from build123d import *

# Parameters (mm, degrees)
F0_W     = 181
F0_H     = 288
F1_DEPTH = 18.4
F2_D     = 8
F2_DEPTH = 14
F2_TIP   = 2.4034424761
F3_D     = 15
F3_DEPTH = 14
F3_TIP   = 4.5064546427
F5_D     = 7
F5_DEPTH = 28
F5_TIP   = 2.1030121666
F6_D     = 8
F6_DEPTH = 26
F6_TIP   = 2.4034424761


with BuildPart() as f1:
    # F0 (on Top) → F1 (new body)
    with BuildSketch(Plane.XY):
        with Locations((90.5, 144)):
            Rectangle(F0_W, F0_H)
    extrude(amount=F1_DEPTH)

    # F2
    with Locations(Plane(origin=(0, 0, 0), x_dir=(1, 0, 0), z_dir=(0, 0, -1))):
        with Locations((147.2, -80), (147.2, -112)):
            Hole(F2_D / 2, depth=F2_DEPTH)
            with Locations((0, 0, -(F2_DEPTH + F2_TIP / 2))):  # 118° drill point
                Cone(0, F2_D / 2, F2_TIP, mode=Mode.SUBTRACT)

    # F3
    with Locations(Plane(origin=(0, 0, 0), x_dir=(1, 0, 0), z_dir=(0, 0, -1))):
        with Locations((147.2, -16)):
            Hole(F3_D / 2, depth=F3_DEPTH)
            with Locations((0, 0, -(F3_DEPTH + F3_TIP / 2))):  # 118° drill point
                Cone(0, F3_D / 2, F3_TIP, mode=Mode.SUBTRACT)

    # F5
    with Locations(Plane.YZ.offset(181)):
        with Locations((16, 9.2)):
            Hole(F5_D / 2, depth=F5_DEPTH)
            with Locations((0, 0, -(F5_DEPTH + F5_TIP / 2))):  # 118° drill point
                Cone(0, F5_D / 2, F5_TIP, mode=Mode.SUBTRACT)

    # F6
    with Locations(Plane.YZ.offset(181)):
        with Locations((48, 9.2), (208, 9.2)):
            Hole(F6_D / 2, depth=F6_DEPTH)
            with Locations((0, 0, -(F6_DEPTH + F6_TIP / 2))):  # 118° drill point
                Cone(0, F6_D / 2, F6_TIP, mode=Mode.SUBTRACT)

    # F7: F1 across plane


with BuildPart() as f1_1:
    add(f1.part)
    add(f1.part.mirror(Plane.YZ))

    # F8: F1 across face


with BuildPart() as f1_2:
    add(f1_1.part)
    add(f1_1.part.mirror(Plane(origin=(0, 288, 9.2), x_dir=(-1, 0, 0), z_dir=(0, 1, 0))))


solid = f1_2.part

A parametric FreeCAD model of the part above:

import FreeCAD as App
import Part
import Sketcher

V = App.Vector
Q = App.Units.Quantity


def add_polygon(sketch, points):
    """Adds a closed chain of lines whose ends are joined by coincident constraints."""
    first, n = sketch.GeometryCount, len(points)
    for a, b in zip(points, points[1:] + points[:1]):
        sketch.addGeometry(Part.LineSegment(App.Vector(*a, 0), App.Vector(*b, 0)), False)
    for i in range(n):
        sketch.addConstraint(Sketcher.Constraint("Coincident", first + i, 2, first + (i + 1) % n, 1))

doc = App.newDocument("Part")
body = doc.addObject("PartDesign::Body", "Body")

# Sketch on XY plane
sketch1 = body.newObject("Sketcher::SketchObject", "Sketch")
sketch1.AttachmentSupport = (doc.getObject("XY_Plane"), [""])
sketch1.MapMode = "FlatFace"
add_polygon(sketch1, [(0, 288), (0, 0), (181, 0), (181, 288)])  # lines 0-3
sketch1.addConstraint([
    Sketcher.Constraint("Vertical", 0),
    Sketcher.Constraint("Horizontal", 1),
    Sketcher.Constraint("Vertical", 2),
    Sketcher.Constraint("Horizontal", 3),
    Sketcher.Constraint("Coincident", 0, 2, -1, 1),
    Sketcher.Constraint("DistanceX", 1, 1, 1, 2, Q("181 mm")),
    Sketcher.Constraint("DistanceY", 0, 2, 0, 1, Q("288 mm")),
])
pad1 = body.newObject("PartDesign::Pad", "Pad")
pad1.Profile = sketch1
pad1.Length = 18.4

# Sketch on XY plane
sketch2 = body.newObject("Sketcher::SketchObject", "Sketch001")
sketch2.AttachmentSupport = (doc.getObject("XY_Plane"), [""])
sketch2.MapMode = "FlatFace"
sketch2.addGeometry([
    Part.Circle(V(147.2, 80, 0), V(0, 0, 1), 4),
    Part.Circle(V(147.2, 112, 0), V(0, 0, 1), 4),
], False)
sketch2.addConstraint([
    Sketcher.Constraint("Equal", 0, 1),
    Sketcher.Constraint("Vertical", 0, 3, 1, 3),
    Sketcher.Constraint("Diameter", 0, Q("8 mm")),
    Sketcher.Constraint("DistanceY", -1, 1, 0, 3, Q("80 mm")),
    Sketcher.Constraint("DistanceY", -1, 1, 1, 3, Q("112 mm")),
    Sketcher.Constraint("DistanceX", -1, 1, 0, 3, Q("147.2 mm")),
])
doc.recompute()
hole = body.newObject("PartDesign::Hole", "Hole")
hole.Profile = sketch2
hole.ThreadType = "None"
hole.Diameter = 8
hole.DepthType = "Dimension"
hole.Depth = 14
hole.DrillPoint = "Angled"
hole.DrillPointAngle = 118
hole.Reversed = True

# Sketch on XY plane
sketch3 = body.newObject("Sketcher::SketchObject", "Sketch002")
sketch3.AttachmentSupport = (doc.getObject("XY_Plane"), [""])
sketch3.MapMode = "FlatFace"
sketch3.addGeometry(Part.Circle(V(147, 16, 0), V(0, 0, 1), 8), False)
sketch3.addConstraint([
    Sketcher.Constraint("Diameter", 0, Q("15 mm")),
    Sketcher.Constraint("DistanceY", -1, 1, 0, 3, Q("16 mm")),
    Sketcher.Constraint("DistanceX", -1, 1, 0, 3, Q("147.2 mm")),
])
doc.recompute()
hole2 = body.newObject("PartDesign::Hole", "Hole001")
hole2.Profile = sketch3
hole2.ThreadType = "None"
hole2.Diameter = 15
hole2.DepthType = "Dimension"
hole2.Depth = 14
hole2.DrillPoint = "Angled"
hole2.DrillPointAngle = 118
hole2.Reversed = True

# Sketch on YZ plane
sketch4 = body.newObject("Sketcher::SketchObject", "Sketch003")
sketch4.AttachmentSupport = (doc.getObject("YZ_Plane"), [""])
sketch4.MapMode = "FlatFace"
sketch4.AttachmentOffset = App.Placement(V(0, 0, 181), App.Rotation())
sketch4.addGeometry(Part.Circle(V(16, 9.2, 0), V(0, 0, 1), 3.5), False)
sketch4.addConstraint([
    Sketcher.Constraint("Diameter", 0, Q("7 mm")),
    Sketcher.Constraint("DistanceX", -1, 1, 0, 3, Q("16 mm")),
    Sketcher.Constraint("DistanceY", -1, 1, 0, 3, Q("9.2 mm")),
])
doc.recompute()
hole3 = body.newObject("PartDesign::Hole", "Hole002")
hole3.Profile = sketch4
hole3.ThreadType = "None"
hole3.Diameter = 7
hole3.DepthType = "Dimension"
hole3.Depth = 28
hole3.DrillPoint = "Angled"
hole3.DrillPointAngle = 118

# Sketch on YZ plane
sketch5 = body.newObject("Sketcher::SketchObject", "Sketch004")
sketch5.AttachmentSupport = (doc.getObject("YZ_Plane"), [""])
sketch5.MapMode = "FlatFace"
sketch5.AttachmentOffset = App.Placement(V(0, 0, 181), App.Rotation())
sketch5.addGeometry([
    Part.Circle(V(48, 9.2, 0), V(0, 0, 1), 4),
    Part.Circle(V(208, 9.2, 0), V(0, 0, 1), 4),
], False)
sketch5.addConstraint([
    Sketcher.Constraint("Equal", 0, 1),
    Sketcher.Constraint("Horizontal", 0, 3, 1, 3),
    Sketcher.Constraint("Diameter", 0, Q("8 mm")),
    Sketcher.Constraint("DistanceX", -1, 1, 0, 3, Q("48 mm")),
    Sketcher.Constraint("DistanceX", -1, 1, 1, 3, Q("208 mm")),
    Sketcher.Constraint("DistanceY", -1, 1, 0, 3, Q("9.2 mm")),
])
doc.recompute()
hole4 = body.newObject("PartDesign::Hole", "Hole003")
hole4.Profile = sketch5
hole4.ThreadType = "None"
hole4.Diameter = 8
hole4.DepthType = "Dimension"
hole4.Depth = 26
hole4.DrillPoint = "Angled"
hole4.DrillPointAngle = 118
body2 = doc.addObject("PartDesign::Body", "Body001")
doc.recompute()

body2.BaseFeature = body
doc.recompute()

mirroring = doc.addObject("Part::Mirroring", "Mirroring")
mirroring.Source = body
mirroring.Base = V(0, 0, 0)
mirroring.Normal = V(1, 0, 0)
body3 = doc.addObject("PartDesign::Body", "Body002")
body3.BaseFeature = mirroring
boolean = body2.newObject("PartDesign::Boolean", "Boolean")
boolean.Type = "Fuse"
boolean.addObjects([body3])
doc.recompute()
body4 = doc.addObject("PartDesign::Body", "Body003")
doc.recompute()

body4.BaseFeature = body2
doc.recompute()

mirroring2 = doc.addObject("Part::Mirroring", "Mirroring001")
mirroring2.Source = body2
mirroring2.Base = V(0, 288, 9.2)
mirroring2.Normal = V(0, 1, 0)
body5 = doc.addObject("PartDesign::Body", "Body004")
body5.BaseFeature = mirroring2
boolean2 = body4.newObject("PartDesign::Boolean", "Boolean001")
boolean2.Type = "Fuse"
boolean2.addObjects([body5])
doc.recompute()
mirroring.Visibility = False
mirroring2.Visibility = False

doc.recompute()
